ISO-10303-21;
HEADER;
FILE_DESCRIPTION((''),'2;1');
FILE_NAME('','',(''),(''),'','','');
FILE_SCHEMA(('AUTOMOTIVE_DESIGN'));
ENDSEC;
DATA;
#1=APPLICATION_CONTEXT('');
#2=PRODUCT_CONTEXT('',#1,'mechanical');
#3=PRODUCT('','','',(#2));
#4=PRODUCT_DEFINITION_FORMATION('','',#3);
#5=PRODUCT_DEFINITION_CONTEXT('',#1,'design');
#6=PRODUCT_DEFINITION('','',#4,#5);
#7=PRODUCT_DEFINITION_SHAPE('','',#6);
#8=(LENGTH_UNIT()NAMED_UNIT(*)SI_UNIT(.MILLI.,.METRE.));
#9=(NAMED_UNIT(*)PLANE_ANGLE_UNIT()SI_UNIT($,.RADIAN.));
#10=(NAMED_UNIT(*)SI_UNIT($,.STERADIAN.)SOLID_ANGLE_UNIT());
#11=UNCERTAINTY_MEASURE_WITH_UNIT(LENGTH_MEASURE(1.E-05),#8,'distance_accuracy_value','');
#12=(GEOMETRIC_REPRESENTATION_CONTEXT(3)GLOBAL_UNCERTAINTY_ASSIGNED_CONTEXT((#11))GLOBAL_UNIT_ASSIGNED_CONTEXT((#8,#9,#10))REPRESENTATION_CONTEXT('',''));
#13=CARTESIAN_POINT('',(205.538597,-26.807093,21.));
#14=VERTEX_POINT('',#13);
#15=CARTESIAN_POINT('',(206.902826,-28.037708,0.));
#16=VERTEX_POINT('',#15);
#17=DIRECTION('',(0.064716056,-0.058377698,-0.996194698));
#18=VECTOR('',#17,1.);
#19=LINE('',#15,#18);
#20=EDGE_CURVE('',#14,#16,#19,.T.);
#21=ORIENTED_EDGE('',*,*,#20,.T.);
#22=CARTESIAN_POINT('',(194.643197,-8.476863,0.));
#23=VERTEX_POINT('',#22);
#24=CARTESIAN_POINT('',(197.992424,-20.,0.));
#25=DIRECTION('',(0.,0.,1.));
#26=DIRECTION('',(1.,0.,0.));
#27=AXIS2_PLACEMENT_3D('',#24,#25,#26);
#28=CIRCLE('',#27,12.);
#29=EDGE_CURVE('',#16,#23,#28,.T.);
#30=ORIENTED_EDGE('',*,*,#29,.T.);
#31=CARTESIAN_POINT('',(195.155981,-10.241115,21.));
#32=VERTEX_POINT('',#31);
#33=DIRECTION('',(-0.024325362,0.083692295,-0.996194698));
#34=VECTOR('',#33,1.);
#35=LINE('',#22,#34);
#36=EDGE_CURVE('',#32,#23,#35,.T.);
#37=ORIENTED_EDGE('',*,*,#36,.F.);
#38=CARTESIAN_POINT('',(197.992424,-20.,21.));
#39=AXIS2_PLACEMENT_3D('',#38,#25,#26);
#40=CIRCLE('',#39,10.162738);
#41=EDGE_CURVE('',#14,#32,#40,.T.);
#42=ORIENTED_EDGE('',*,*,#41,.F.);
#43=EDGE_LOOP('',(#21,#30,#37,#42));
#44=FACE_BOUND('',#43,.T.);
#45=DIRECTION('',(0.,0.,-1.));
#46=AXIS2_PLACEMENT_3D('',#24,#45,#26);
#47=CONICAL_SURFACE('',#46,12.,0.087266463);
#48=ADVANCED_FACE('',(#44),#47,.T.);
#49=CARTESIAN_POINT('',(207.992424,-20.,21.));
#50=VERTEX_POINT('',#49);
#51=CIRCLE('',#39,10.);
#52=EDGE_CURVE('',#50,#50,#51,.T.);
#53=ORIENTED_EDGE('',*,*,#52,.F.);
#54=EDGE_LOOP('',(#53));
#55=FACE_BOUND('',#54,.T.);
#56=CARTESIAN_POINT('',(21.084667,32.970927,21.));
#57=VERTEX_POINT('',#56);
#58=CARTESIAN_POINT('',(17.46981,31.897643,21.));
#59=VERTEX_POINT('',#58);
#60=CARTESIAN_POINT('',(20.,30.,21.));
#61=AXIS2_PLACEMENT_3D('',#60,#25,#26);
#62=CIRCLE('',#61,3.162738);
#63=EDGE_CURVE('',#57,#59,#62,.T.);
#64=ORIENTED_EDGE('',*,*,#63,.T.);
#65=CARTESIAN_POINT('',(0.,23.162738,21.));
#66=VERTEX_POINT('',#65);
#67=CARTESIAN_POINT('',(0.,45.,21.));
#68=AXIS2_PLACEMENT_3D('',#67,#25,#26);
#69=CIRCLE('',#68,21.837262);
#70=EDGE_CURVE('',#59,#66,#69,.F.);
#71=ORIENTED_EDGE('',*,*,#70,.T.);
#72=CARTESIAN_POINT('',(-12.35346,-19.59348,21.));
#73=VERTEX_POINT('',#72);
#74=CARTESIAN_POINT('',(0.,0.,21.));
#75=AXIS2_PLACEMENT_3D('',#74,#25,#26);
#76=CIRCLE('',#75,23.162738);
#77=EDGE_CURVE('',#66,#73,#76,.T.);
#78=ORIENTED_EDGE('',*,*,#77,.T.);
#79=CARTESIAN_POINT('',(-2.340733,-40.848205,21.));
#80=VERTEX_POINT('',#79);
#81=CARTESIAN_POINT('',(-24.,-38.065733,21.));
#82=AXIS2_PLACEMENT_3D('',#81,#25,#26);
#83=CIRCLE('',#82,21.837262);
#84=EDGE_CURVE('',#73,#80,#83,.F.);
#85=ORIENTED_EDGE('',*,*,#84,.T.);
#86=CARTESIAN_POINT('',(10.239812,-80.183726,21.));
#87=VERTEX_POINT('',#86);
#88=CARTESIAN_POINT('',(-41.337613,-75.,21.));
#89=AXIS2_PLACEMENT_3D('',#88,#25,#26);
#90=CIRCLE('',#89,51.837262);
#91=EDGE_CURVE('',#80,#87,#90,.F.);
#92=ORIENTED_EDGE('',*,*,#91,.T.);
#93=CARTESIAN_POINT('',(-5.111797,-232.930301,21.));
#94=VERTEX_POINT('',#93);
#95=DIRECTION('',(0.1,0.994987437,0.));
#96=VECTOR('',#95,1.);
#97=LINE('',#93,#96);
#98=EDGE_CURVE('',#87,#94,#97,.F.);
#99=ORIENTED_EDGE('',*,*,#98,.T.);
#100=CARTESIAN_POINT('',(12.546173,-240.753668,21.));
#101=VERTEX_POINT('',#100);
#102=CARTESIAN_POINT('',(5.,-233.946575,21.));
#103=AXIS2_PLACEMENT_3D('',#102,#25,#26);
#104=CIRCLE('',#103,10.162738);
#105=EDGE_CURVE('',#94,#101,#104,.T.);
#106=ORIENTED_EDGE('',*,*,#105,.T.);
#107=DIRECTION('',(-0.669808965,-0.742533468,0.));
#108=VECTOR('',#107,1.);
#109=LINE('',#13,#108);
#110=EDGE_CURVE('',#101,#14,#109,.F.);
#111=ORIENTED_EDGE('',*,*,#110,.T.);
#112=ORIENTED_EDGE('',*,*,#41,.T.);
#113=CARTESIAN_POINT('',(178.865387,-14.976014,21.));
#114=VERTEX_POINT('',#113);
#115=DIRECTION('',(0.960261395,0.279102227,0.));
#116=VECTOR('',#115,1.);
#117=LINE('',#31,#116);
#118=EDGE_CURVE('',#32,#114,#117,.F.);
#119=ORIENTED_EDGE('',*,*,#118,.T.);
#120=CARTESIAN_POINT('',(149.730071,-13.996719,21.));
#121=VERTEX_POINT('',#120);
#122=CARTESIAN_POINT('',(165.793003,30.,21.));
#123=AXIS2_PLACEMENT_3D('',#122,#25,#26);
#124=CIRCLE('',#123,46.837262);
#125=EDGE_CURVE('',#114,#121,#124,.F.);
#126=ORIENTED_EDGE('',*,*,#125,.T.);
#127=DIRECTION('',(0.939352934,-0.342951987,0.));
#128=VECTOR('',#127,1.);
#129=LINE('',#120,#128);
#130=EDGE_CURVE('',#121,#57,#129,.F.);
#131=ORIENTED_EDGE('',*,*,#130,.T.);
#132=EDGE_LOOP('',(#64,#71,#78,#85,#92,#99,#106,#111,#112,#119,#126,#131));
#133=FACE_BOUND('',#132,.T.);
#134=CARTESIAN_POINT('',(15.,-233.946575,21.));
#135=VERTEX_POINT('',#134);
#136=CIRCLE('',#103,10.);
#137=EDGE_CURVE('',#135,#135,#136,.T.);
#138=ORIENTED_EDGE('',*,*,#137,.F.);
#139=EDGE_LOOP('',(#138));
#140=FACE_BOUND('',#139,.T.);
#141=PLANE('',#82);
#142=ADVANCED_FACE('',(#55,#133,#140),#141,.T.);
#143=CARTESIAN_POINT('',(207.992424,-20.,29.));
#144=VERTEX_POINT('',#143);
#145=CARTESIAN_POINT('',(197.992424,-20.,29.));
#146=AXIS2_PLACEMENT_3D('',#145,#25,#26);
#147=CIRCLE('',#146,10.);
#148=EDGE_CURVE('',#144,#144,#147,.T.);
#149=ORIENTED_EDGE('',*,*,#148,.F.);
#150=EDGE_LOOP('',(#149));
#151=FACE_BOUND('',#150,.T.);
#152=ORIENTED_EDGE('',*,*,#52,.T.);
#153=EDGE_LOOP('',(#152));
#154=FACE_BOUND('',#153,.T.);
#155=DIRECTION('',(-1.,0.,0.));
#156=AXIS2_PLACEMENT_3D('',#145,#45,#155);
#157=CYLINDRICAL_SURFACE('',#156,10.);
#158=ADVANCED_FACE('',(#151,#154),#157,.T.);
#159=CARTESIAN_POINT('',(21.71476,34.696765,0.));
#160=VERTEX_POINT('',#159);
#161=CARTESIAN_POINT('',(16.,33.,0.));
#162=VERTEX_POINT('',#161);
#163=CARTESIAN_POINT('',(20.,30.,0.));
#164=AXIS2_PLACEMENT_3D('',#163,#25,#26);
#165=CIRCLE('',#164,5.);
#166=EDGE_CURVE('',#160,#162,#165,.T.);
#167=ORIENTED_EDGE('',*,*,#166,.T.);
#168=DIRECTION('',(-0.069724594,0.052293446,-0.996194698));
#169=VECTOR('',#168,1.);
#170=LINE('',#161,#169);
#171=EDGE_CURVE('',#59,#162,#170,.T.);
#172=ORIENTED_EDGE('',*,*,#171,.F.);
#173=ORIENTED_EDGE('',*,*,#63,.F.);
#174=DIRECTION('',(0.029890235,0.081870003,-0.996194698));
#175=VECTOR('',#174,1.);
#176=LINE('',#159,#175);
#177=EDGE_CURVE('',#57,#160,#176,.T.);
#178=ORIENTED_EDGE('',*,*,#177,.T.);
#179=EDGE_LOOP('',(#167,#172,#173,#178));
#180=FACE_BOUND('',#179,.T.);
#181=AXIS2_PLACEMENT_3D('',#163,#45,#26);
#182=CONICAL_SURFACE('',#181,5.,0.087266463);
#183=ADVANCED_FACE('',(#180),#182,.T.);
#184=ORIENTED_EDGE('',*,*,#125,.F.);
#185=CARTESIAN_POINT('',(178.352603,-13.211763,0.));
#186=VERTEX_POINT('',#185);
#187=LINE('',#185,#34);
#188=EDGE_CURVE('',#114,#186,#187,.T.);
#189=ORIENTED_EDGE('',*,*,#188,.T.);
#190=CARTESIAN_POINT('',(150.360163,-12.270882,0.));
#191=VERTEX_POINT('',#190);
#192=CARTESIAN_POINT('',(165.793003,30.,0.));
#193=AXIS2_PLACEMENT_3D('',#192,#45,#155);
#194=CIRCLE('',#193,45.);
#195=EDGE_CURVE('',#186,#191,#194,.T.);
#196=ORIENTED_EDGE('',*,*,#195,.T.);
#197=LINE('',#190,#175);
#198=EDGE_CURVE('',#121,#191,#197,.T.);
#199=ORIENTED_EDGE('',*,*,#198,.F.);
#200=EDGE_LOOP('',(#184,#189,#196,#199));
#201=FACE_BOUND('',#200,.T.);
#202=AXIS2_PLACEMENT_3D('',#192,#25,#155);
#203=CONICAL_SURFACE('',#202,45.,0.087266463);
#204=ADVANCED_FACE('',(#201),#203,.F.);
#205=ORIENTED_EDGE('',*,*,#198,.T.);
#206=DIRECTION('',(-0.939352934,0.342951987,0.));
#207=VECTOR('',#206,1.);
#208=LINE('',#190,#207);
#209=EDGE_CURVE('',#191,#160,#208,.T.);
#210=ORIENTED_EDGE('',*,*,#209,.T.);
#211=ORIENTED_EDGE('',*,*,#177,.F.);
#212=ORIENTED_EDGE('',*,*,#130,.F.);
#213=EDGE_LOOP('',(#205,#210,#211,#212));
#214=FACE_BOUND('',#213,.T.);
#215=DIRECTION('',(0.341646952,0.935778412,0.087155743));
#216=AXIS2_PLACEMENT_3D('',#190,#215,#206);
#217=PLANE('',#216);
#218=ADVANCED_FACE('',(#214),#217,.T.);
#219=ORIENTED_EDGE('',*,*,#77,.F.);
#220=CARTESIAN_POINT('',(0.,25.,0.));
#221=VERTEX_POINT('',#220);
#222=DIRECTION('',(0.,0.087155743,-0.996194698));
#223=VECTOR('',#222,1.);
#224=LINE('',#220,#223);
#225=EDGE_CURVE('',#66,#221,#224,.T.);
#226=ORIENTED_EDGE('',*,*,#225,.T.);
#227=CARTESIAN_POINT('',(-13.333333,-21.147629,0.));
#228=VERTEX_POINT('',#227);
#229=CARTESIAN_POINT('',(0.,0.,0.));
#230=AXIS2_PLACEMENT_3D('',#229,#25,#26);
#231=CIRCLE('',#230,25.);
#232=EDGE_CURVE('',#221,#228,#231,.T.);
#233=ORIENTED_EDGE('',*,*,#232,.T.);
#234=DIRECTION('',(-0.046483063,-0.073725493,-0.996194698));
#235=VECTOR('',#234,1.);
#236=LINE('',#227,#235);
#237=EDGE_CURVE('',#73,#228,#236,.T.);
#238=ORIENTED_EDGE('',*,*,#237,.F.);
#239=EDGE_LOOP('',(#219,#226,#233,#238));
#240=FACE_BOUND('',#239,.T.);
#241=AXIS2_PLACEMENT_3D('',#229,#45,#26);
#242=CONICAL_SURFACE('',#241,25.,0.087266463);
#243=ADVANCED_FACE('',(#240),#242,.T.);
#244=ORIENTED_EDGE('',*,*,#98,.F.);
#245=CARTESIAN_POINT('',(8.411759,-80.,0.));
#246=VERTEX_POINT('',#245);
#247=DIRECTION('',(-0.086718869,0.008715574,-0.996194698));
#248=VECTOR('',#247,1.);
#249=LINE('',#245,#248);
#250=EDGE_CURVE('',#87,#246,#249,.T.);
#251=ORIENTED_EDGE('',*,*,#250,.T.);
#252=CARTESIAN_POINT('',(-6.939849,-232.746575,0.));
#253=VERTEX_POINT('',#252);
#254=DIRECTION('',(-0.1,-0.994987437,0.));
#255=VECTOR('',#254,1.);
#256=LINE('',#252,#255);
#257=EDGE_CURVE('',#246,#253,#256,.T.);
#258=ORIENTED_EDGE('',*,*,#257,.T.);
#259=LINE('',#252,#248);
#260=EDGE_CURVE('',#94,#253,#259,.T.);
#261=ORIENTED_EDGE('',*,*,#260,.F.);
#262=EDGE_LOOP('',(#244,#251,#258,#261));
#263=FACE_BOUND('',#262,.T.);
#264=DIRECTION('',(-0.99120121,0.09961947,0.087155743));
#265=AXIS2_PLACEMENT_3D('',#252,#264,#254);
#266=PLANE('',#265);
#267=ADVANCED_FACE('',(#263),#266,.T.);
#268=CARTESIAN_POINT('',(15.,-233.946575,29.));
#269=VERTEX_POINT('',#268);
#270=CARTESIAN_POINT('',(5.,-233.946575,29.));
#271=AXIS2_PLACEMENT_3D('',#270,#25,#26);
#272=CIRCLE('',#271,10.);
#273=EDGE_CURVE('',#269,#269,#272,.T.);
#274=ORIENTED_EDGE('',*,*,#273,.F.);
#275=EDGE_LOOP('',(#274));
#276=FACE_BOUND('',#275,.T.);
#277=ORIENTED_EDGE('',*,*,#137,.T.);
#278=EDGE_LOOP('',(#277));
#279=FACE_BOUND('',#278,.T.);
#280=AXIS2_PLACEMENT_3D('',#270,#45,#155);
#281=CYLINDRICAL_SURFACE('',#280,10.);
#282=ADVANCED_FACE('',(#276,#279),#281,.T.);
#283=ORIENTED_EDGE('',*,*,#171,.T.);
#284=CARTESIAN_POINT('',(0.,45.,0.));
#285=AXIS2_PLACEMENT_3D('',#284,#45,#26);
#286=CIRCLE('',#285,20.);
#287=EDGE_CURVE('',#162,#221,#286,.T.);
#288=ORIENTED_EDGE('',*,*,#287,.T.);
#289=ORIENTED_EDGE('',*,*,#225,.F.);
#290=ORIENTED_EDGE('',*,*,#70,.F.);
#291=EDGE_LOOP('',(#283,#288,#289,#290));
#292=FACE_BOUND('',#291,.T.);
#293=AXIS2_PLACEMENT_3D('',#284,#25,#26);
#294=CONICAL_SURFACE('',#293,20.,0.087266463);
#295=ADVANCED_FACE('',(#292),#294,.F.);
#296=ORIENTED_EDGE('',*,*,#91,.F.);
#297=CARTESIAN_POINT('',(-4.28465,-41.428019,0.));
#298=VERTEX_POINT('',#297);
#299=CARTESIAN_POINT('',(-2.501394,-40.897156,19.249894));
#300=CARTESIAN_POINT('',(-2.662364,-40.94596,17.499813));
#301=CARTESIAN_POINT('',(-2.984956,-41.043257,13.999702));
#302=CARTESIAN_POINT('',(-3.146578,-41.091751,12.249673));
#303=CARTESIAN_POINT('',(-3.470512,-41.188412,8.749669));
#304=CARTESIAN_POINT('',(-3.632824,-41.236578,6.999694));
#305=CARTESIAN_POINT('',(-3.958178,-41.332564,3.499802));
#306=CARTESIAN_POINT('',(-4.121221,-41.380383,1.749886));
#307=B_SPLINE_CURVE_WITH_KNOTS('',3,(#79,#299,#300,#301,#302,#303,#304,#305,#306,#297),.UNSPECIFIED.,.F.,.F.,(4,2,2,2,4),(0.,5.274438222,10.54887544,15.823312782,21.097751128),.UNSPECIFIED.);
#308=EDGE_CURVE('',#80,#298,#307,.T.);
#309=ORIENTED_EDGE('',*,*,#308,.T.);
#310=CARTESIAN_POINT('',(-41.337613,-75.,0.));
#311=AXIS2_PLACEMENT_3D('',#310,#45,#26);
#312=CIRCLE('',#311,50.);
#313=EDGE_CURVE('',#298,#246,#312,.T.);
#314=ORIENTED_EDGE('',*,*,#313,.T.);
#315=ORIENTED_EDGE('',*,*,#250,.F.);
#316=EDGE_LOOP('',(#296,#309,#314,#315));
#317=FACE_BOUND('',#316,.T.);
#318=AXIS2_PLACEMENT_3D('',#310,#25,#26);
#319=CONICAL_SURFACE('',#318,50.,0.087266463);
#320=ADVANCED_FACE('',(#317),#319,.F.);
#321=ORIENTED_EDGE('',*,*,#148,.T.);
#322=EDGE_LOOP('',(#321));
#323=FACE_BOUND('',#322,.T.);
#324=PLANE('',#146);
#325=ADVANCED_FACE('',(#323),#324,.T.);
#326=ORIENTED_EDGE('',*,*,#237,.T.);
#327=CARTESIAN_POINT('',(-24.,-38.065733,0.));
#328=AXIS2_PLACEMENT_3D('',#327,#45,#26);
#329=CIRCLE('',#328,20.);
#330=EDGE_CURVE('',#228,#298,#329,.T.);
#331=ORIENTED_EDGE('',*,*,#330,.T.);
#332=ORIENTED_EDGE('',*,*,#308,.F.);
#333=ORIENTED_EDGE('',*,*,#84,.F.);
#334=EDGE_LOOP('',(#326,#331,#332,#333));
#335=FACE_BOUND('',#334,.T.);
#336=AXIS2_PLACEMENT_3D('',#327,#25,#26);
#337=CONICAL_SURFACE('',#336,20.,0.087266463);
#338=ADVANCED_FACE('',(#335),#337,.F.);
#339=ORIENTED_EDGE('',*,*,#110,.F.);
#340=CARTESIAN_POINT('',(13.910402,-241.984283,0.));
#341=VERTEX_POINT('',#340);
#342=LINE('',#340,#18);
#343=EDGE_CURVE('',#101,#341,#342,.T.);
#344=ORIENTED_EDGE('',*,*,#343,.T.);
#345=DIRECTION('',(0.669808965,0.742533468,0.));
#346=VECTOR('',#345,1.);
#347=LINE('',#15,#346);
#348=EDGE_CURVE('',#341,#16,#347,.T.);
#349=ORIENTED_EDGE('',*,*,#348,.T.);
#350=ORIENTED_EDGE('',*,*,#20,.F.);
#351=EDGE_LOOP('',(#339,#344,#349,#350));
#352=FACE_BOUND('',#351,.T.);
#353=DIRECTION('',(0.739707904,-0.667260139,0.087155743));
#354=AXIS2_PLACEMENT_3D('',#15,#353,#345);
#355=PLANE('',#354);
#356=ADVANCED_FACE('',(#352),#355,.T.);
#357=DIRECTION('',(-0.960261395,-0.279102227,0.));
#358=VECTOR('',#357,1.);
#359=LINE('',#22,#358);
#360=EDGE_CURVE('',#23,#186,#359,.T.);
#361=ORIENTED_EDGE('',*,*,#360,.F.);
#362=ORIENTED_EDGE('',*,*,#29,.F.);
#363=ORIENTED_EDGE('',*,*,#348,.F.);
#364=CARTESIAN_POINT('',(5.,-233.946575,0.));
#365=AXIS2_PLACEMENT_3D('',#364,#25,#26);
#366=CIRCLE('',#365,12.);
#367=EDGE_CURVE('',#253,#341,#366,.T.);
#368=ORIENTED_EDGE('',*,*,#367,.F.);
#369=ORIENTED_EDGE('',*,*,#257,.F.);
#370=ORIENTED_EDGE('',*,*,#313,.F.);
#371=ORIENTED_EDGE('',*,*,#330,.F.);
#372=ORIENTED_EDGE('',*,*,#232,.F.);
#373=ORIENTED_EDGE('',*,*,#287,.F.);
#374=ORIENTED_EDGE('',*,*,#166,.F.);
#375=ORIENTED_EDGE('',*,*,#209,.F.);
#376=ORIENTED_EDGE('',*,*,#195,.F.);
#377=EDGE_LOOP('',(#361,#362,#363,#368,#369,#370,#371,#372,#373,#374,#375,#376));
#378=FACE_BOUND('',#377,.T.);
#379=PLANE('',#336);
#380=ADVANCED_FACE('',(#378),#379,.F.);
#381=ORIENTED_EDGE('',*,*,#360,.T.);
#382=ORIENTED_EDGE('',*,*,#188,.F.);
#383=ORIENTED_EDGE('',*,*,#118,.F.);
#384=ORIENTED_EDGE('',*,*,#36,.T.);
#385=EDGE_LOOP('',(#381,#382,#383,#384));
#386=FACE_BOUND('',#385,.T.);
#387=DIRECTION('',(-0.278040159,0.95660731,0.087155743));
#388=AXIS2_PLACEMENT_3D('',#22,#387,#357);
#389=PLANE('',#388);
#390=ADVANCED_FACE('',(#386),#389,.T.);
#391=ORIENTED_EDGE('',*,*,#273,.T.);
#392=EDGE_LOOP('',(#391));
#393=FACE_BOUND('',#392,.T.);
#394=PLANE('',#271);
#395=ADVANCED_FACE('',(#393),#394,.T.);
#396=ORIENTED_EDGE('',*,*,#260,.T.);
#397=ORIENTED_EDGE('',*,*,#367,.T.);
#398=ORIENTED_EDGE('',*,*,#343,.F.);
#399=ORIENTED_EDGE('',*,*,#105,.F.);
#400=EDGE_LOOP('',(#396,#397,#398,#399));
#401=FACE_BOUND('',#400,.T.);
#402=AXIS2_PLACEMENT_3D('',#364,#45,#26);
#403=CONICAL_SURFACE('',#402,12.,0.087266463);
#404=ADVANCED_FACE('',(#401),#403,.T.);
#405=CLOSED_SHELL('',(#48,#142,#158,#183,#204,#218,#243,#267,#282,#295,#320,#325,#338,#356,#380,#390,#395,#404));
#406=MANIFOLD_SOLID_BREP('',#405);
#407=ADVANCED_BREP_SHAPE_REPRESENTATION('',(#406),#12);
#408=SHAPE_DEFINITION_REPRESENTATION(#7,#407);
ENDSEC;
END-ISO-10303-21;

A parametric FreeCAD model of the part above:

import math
import FreeCAD as App
import Part
import Sketcher

V = App.Vector
Q = App.Units.Quantity

doc = App.newDocument("Part")
body = doc.addObject("PartDesign::Body", "Body")

# Sketch on XY plane
sketch1 = body.newObject("Sketcher::SketchObject", "Sketch")
sketch1.AttachmentSupport = (doc.getObject("XY_Plane"), [""])
sketch1.MapMode = "FlatFace"
sketch1.addGeometry([
    Part.ArcOfCircle(Part.Circle(V(197.992424, -20, 0), V(0, 0, 1), 12), math.radians(-42.052322), math.radians(106.20663)),  # 0
    Part.LineSegment(V(194.643197, -8.476863, 0), V(178.352603, -13.211763, 0)),  # 1
    Part.ArcOfCircle(Part.Circle(V(165.793003, 30, 0), V(0, 0, 1), 45), math.radians(-110.056827), math.radians(-73.79337)),  # 2
    Part.LineSegment(V(150.360163, -12.270882, 0), V(21.71476, 34.696765, 0)),  # 3
    Part.ArcOfCircle(Part.Circle(V(20, 30, 0), V(0, 0, 1), 5), math.radians(69.943173), math.radians(143.130102)),  # 4
    Part.ArcOfCircle(Part.Circle(V(0, 45, 0), V(0, 0, 1), 20), math.radians(-90), math.radians(-36.869898)),  # 5
    Part.ArcOfCircle(Part.Circle(V(0, 0, 0), V(0, 0, 1), 25), math.radians(90), math.radians(237.769047)),  # 6
    Part.ArcOfCircle(Part.Circle(V(-24, -38.065733, 0), V(0, 0, 1), 20), math.radians(-9.678198), math.radians(57.769047)),  # 7
    Part.ArcOfCircle(Part.Circle(V(-41.337613, -75, 0), V(0, 0, 1), 50), math.radians(-5.73917), math.radians(42.178274)),  # 8
    Part.LineSegment(V(8.411759, -80, 0), V(-6.939849, -232.746575, 0)),  # 9
    Part.ArcOfCircle(Part.Circle(V(5, -233.946575, 0), V(0, 0, 1), 12), math.radians(174.26083), math.radians(317.947678)),  # 10
    Part.LineSegment(V(13.910402, -241.984283, 0), V(206.902826, -28.037708, 0)),  # 11
], False)
sketch1.addConstraint([
    Sketcher.Constraint("Coincident", 0, 2, 1, 1),
    Sketcher.Constraint("Coincident", 1, 2, 2, 2),
    Sketcher.Constraint("Coincident", 2, 1, 3, 1),
    Sketcher.Constraint("Coincident", 3, 2, 4, 1),
    Sketcher.Constraint("Coincident", 4, 2, 5, 2),
    Sketcher.Constraint("Coincident", 5, 1, 6, 1),
    Sketcher.Constraint("Coincident", 6, 2, 7, 2),
    Sketcher.Constraint("Coincident", 7, 1, 8, 2),
    Sketcher.Constraint("Coincident", 8, 1, 9, 1),
    Sketcher.Constraint("Coincident", 9, 2, 10, 1),
    Sketcher.Constraint("Coincident", 10, 2, 11, 1),
    Sketcher.Constraint("Coincident", 11, 2, 0, 1),
    Sketcher.Constraint("Coincident", 6, 3, -1, 1),
    Sketcher.Constraint("PointOnObject", 5, 3, -2),
    Sketcher.Constraint("PointOnObject", 5, 1, -2),
    Sketcher.Constraint("Radius", 0, Q("12 mm")),
    Sketcher.Constraint("Radius", 2, Q("45 mm")),
    Sketcher.Constraint("Radius", 4, Q("5 mm")),
    Sketcher.Constraint("Radius", 5, Q("20 mm")),
    Sketcher.Constraint("Radius", 6, Q("25 mm")),
    Sketcher.Constraint("Radius", 7, Q("20 mm")),
    Sketcher.Constraint("Radius", 8, Q("50 mm")),
    Sketcher.Constraint("Radius", 10, Q("12 mm")),
    Sketcher.Constraint("DistanceY", 0, 3, -1, 1, Q("20 mm")),
    Sketcher.Constraint("DistanceY", -1, 1, 2, 3, Q("30 mm")),
    Sketcher.Constraint("DistanceX", -1, 1, 4, 3, Q("20 mm")),
    Sketcher.Constraint("DistanceX", 7, 3, -1, 1, Q("24 mm")),
    Sketcher.Constraint("DistanceY", 8, 3, -1, 1, Q("75 mm")),
    Sketcher.Constraint("DistanceX", -1, 1, 10, 3, Q("5 mm")),
    Sketcher.Constraint("DistanceX", -1, 1, 4, 2, Q("16 mm")),
    Sketcher.Constraint("DistanceY", 8, 1, -1, 1, Q("80 mm")),
    Sketcher.Constraint("DistanceY", 10, 3, 9, 2, Q("1.2 mm")),
    Sketcher.Constraint("DistanceX", -1, 1, 10, 2, Q("13.910402 mm")),
    Sketcher.Constraint("DistanceY", 1, 2, 0, 2, Q("4.7349 mm")),
    Sketcher.Constraint("DistanceX", 2, 3, 1, 2, Q("12.5596 mm")),
    Sketcher.Constraint("DistanceX", 9, 2, 7, 1, Q("2.655199 mm")),
    Sketcher.Constraint("DistanceX", 0, 3, 11, 2, Q("8.910402 mm")),
    Sketcher.Constraint("Distance", 1, Q("16.96475 mm")),
    Sketcher.Constraint("Distance", 11, Q("288.130548 mm")),
    Sketcher.Constraint("DistanceX", -1, 1, 3, 2, Q("21.71476 mm")),
    Sketcher.Constraint("DistanceY", 6, 2, -1, 1, Q("21.147629 mm")),
    Sketcher.Constraint("DistanceX", 2, 1, 1, 2, Q("27.99244 mm")),
    Sketcher.Constraint("Distance", 3, Q("136.951085 mm")),
])
pad1 = body.newObject("PartDesign::Pad", "Pad")
pad1.Profile = sketch1
pad1.Length = 21
pad1.TaperAngle = -5

# Sketch on XY plane
sketch2 = body.newObject("Sketcher::SketchObject", "Sketch001")
sketch2.AttachmentSupport = (doc.getObject("XY_Plane"), [""])
sketch2.MapMode = "FlatFace"
sketch2.AttachmentOffset = App.Placement(V(0, 0, 21), App.Rotation())
sketch2.addGeometry([
    Part.Circle(V(5, -234, 0), V(0, 0, 1), 10),
    Part.Circle(V(198, -20, 0), V(0, 0, 1), 10),
], False)
sketch2.addConstraint([
    Sketcher.Constraint("Equal", 0, 1),
    Sketcher.Constraint("Diameter", 0, Q("20 mm")),
    Sketcher.Constraint("DistanceX", -1, 1, 0, 3, Q("5 mm")),
    Sketcher.Constraint("DistanceY", 1, 3, -1, 1, Q("20 mm")),
    Sketcher.Constraint("DistanceY", 0, 3, -1, 1, Q("233.946575 mm")),
    Sketcher.Constraint("DistanceX", -1, 1, 1, 3, Q("197.992424 mm")),
])
pad2 = body.newObject("PartDesign::Pad", "Pad001")
pad2.Profile = sketch2
pad2.Length = 8

doc.recompute()
